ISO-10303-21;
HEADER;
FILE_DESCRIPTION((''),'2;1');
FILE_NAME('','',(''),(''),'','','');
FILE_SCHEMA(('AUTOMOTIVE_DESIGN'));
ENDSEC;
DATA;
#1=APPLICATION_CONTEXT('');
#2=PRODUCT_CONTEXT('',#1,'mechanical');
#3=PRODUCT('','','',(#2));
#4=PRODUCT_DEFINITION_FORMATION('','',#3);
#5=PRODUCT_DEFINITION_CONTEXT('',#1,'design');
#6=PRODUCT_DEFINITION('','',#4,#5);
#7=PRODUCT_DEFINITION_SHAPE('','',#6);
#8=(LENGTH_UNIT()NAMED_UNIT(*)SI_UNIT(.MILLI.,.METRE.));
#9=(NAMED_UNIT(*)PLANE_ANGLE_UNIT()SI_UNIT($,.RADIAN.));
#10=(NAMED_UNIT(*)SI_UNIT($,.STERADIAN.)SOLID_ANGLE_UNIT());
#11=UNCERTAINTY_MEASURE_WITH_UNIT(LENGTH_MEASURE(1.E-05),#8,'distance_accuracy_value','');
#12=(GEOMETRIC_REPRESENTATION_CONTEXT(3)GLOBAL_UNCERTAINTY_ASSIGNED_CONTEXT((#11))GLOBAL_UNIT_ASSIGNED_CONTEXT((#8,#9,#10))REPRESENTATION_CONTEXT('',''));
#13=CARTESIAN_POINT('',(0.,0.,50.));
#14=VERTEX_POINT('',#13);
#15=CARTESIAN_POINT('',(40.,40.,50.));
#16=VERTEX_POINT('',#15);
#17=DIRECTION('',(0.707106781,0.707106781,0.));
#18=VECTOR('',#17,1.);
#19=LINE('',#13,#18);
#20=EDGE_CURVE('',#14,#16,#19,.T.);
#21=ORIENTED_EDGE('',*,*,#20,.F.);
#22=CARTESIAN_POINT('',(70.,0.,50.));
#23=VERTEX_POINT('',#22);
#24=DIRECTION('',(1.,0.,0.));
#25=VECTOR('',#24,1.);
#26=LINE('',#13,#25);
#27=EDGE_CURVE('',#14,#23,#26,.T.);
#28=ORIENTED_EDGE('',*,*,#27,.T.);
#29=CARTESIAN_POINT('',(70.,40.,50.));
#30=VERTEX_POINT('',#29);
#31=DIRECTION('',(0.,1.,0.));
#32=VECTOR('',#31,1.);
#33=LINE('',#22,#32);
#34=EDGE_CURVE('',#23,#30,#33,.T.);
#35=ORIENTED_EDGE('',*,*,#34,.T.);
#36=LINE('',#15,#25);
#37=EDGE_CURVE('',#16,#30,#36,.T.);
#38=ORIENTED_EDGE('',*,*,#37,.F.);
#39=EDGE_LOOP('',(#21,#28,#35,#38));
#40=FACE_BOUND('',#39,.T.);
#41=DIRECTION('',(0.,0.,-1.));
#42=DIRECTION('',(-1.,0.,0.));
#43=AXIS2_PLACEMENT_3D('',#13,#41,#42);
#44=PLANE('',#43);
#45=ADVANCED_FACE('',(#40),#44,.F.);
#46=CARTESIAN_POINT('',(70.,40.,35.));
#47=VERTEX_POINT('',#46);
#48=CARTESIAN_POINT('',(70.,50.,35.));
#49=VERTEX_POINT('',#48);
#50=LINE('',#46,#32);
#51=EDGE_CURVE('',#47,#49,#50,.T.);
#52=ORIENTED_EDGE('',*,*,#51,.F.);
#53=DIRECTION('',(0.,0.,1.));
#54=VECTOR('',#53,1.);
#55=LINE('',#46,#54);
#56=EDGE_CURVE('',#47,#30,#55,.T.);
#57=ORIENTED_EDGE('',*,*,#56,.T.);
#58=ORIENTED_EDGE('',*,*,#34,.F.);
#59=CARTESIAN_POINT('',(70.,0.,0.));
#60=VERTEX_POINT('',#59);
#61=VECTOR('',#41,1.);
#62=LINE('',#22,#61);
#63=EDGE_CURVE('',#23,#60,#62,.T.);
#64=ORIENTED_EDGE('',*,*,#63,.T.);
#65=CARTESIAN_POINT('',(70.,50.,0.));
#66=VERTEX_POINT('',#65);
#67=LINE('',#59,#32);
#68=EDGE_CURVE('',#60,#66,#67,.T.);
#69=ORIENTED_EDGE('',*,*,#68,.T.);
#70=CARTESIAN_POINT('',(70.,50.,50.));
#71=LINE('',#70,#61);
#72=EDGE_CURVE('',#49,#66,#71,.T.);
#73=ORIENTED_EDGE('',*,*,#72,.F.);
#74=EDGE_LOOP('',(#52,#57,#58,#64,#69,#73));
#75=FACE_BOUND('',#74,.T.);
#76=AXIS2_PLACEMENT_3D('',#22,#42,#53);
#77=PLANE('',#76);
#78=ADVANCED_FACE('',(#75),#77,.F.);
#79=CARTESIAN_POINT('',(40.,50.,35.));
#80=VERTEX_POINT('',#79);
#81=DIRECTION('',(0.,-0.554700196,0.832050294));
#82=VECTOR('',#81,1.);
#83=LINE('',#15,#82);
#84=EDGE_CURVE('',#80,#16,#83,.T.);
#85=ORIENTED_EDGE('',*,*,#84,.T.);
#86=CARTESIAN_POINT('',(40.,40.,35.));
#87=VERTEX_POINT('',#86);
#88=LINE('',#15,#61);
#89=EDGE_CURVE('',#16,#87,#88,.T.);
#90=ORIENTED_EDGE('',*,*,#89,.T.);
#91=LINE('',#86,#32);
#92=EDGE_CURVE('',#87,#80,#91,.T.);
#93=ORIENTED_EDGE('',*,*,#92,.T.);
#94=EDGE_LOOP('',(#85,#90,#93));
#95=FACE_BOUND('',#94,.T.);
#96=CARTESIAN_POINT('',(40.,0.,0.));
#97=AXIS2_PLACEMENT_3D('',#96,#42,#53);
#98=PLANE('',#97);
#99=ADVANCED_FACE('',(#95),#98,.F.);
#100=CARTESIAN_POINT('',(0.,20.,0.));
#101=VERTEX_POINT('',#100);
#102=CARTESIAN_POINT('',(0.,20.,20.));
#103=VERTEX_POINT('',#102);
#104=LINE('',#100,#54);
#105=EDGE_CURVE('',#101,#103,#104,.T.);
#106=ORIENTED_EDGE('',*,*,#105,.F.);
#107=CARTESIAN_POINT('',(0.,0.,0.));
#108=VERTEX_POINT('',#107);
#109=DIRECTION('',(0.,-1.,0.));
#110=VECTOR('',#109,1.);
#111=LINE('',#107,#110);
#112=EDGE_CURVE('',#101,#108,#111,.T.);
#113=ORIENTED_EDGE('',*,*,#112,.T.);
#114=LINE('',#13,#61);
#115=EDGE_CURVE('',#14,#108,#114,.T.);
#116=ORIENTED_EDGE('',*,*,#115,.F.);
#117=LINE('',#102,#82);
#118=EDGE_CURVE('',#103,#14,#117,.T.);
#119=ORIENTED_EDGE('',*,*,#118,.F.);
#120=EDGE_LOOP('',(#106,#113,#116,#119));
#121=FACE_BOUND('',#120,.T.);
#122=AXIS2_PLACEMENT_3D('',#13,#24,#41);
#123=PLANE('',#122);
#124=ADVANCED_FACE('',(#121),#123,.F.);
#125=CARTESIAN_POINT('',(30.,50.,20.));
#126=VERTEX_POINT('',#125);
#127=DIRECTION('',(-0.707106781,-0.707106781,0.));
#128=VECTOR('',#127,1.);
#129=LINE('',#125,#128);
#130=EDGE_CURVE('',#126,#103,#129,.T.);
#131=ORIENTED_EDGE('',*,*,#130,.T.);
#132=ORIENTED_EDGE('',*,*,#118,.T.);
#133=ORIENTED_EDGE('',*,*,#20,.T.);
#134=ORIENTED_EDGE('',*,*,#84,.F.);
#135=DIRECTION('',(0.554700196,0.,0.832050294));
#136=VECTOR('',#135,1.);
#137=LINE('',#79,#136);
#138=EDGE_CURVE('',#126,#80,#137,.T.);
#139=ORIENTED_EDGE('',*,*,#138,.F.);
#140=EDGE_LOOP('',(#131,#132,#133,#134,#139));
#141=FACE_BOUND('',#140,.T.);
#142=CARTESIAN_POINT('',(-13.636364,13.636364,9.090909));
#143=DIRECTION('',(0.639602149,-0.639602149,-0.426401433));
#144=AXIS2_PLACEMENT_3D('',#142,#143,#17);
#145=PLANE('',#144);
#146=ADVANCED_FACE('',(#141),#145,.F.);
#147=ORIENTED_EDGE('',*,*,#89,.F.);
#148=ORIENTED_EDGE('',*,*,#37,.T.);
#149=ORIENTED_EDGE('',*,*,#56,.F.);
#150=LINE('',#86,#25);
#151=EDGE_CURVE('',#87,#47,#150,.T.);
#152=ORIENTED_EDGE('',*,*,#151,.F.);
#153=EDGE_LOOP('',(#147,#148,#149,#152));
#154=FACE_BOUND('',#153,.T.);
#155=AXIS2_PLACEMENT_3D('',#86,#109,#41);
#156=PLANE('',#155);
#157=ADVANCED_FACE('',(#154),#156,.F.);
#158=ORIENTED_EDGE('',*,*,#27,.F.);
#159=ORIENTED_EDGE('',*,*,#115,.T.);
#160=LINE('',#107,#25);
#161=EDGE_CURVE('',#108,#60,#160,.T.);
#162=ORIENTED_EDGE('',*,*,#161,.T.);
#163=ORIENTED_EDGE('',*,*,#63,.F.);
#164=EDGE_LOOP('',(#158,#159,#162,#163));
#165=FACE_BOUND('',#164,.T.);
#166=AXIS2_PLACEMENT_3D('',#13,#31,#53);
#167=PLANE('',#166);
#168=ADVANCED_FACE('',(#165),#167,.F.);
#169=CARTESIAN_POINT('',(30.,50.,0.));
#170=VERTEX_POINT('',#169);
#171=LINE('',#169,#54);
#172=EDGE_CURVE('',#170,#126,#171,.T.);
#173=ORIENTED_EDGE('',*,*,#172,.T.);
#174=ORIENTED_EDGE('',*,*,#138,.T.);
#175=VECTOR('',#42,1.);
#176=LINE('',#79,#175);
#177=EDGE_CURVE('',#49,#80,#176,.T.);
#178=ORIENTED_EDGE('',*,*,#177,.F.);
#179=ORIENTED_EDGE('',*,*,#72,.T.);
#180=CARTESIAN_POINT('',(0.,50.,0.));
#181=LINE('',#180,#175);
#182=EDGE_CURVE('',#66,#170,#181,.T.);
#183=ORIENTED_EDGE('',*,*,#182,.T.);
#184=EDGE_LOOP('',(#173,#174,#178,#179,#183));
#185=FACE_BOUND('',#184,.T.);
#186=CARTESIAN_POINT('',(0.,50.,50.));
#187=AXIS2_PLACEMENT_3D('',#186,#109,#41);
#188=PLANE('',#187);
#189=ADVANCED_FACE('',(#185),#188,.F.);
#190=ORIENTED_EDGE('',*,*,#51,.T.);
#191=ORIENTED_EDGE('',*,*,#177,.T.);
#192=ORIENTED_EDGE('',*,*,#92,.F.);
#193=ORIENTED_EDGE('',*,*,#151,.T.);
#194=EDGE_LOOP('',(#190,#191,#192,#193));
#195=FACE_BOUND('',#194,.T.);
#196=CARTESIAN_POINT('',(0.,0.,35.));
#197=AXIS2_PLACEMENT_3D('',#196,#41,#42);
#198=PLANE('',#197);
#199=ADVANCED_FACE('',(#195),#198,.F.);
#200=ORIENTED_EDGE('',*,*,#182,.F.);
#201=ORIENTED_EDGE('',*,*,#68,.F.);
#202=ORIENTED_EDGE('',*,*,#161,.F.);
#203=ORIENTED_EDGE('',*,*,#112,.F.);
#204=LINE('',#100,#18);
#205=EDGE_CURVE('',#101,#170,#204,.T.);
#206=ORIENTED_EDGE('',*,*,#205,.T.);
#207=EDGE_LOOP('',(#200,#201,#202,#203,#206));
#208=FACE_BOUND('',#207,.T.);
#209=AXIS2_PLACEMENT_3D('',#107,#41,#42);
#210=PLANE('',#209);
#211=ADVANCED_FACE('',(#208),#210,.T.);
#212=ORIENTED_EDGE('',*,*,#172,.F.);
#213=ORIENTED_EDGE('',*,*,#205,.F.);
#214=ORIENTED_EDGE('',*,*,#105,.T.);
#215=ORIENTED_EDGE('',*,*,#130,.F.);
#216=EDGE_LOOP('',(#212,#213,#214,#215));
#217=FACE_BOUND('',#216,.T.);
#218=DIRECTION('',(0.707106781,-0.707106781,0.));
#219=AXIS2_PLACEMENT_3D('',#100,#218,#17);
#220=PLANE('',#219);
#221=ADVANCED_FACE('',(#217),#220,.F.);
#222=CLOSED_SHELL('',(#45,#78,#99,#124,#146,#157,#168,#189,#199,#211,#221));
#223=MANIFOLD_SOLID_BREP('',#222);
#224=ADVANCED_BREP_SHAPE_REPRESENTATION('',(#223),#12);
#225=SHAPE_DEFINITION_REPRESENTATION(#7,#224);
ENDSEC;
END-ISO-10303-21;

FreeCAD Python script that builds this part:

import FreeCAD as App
import Part
import Sketcher

doc = App.newDocument("Part")
body = doc.addObject("PartDesign::Body", "Body")

sketch1 = body.newObject("Sketcher::SketchObject", "Sketch")
sketch1.AttachmentSupport = (doc.getObject("XY_Plane"), [""])
sketch1.MapMode = "FlatFace"
sketch1.addGeometry(Part.LineSegment(App.Vector(0, 50, 0), App.Vector(0, 0, 0)), False)
sketch1.addGeometry(Part.LineSegment(App.Vector(0, 0, 0), App.Vector(70, 0, 0)), False)
sketch1.addGeometry(Part.LineSegment(App.Vector(70, 0, 0), App.Vector(70, 50, 0)), False)
sketch1.addGeometry(Part.LineSegment(App.Vector(70, 50, 0), App.Vector(0, 50, 0)), False)
sketch1.addConstraint(Sketcher.Constraint("Coincident", 0, 2, 1, 1))
sketch1.addConstraint(Sketcher.Constraint("Coincident", 1, 2, 2, 1))
sketch1.addConstraint(Sketcher.Constraint("Coincident", 2, 2, 3, 1))
sketch1.addConstraint(Sketcher.Constraint("Coincident", 3, 2, 0, 1))
sketch1.addConstraint(Sketcher.Constraint("Vertical", 0))
sketch1.addConstraint(Sketcher.Constraint("Horizontal", 1))
sketch1.addConstraint(Sketcher.Constraint("Vertical", 2))
sketch1.addConstraint(Sketcher.Constraint("Horizontal", 3))
sketch1.addConstraint(Sketcher.Constraint("Coincident", 0, 2, -1, 1))
sketch1.addConstraint(Sketcher.Constraint("DistanceX", 1, 1, 1, 2, 70.0))
sketch1.addConstraint(Sketcher.Constraint("DistanceY", 0, 2, 0, 1, 50.0))
pad1 = body.newObject("PartDesign::Pad", "Pad")
pad1.Profile = sketch1
pad1.Length = 50

sketch2 = body.newObject("Sketcher::SketchObject", "Sketch001")
sketch2.AttachmentSupport = (doc.getObject("XY_Plane"), [""])
sketch2.MapMode = "FlatFace"
sketch2.AttachmentOffset = App.Placement(App.Vector(0, 0, 50), App.Rotation())
sketch2.addGeometry(Part.LineSegment(App.Vector(0, 20, 0), App.Vector(30, 50, 0)), False)
sketch2.addGeometry(Part.LineSegment(App.Vector(30, 50, 0), App.Vector(0, 50, 0)), False)
sketch2.addGeometry(Part.LineSegment(App.Vector(0, 50, 0), App.Vector(0, 20, 0)), False)
sketch2.addConstraint(Sketcher.Constraint("Coincident", 0, 2, 1, 1))
sketch2.addConstraint(Sketcher.Constraint("Coincident", 1, 2, 2, 1))
sketch2.addConstraint(Sketcher.Constraint("Coincident", 2, 2, 0, 1))
sketch2.addConstraint(Sketcher.Constraint("Horizontal", 1))
sketch2.addConstraint(Sketcher.Constraint("Vertical", 2))
sketch2.addConstraint(Sketcher.Constraint("PointOnObject", 1, 2, -2))
sketch2.addConstraint(Sketcher.Constraint("Equal", 1, 2))
sketch2.addConstraint(Sketcher.Constraint("DistanceX", 1, 2, 1, 1, 30.0))
sketch2.addConstraint(Sketcher.Constraint("DistanceY", -1, 1, 0, 2, 50.0))
pocket1 = body.newObject("PartDesign::Pocket", "Pocket")
pocket1.Profile = sketch2
pocket1.Length = 50

sketch3 = body.newObject("Sketcher::SketchObject", "Sketch002")
sketch3.AttachmentSupport = (doc.getObject("XY_Plane"), [""])
sketch3.MapMode = "FlatFace"
sketch3.AttachmentOffset = App.Placement(App.Vector(0, 0, 50), App.Rotation())
sketch3.addGeometry(Part.LineSegment(App.Vector(0, 0, 0), App.Vector(40, 40, 0)), False)
sketch3.addGeometry(Part.LineSegment(App.Vector(40, 40, 0), App.Vector(40, 50, 0)), False)
sketch3.addGeometry(Part.LineSegment(App.Vector(40, 50, 0), App.Vector(30, 50, 0)), False)
sketch3.addGeometry(Part.LineSegment(App.Vector(30, 50, 0), App.Vector(0, 20, 0)), False)
sketch3.addGeometry(Part.LineSegment(App.Vector(0, 20, 0), App.Vector(0, 0, 0)), False)
sketch3.addConstraint(Sketcher.Constraint("Coincident", 0, 2, 1, 1))
sketch3.addConstraint(Sketcher.Constraint("Coincident", 1, 2, 2, 1))
sketch3.addConstraint(Sketcher.Constraint("Coincident", 2, 2, 3, 1))
sketch3.addConstraint(Sketcher.Constraint("Coincident", 3, 2, 4, 1))
sketch3.addConstraint(Sketcher.Constraint("Coincident", 4, 2, 0, 1))
sketch3.addConstraint(Sketcher.Constraint("Vertical", 1))
sketch3.addConstraint(Sketcher.Constraint("Horizontal", 2))
sketch3.addConstraint(Sketcher.Constraint("Vertical", 4))
sketch3.addConstraint(Sketcher.Constraint("Coincident", 4, 2, -1, 1))
sketch3.addConstraint(Sketcher.Constraint("Parallel", 0, 3))
sketch3.addConstraint(Sketcher.Constraint("Equal", 2, 1))
sketch3.addConstraint(Sketcher.Constraint("DistanceX", 2, 2, 2, 1, 10.0))
sketch3.addConstraint(Sketcher.Constraint("DistanceY", 4, 2, 4, 1, 20.0))
sketch3.addConstraint(Sketcher.Constraint("DistanceX", -1, 1, 0, 2, 40.0))
pocket2 = body.newObject("PartDesign::Pocket", "Pocket001")
pocket2.Profile = sketch3
pocket2.Length = 30

sketch4 = body.newObject("Sketcher::SketchObject", "Sketch003")
sketch4.Placement = App.Placement(App.Vector(-13.636364, 13.636364, 9.090909), App.Rotation(App.Vector(0.768706115, 0.532181156, 0.354787438), App.Vector(0, 0.554700197, -0.832050294), App.Vector(-0.639602149, 0.639602149, 0.426401433), "ZXY"))
sketch4.addGeometry(Part.LineSegment(App.Vector(18, -6, 0), App.Vector(18, -42, 0)), False)
sketch4.addGeometry(Part.LineSegment(App.Vector(18, -42, 0), App.Vector(70, -19, 0)), False)
sketch4.addGeometry(Part.LineSegment(App.Vector(70, -19, 0), App.Vector(57, 11, 0)), False)
sketch4.addGeometry(Part.LineSegment(App.Vector(57, 11, 0), App.Vector(18, -6, 0)), False)
sketch4.addConstraint(Sketcher.Constraint("Coincident", 0, 2, 1, 1))
sketch4.addConstraint(Sketcher.Constraint("Coincident", 1, 2, 2, 1))
sketch4.addConstraint(Sketcher.Constraint("Coincident", 2, 2, 3, 1))
sketch4.addConstraint(Sketcher.Constraint("Coincident", 3, 2, 0, 1))
sketch4.addConstraint(Sketcher.Constraint("Vertical", 0))
sketch4.addConstraint(Sketcher.Constraint("Perpendicular", 1, 2))
sketch4.addConstraint(Sketcher.Constraint("Perpendicular", 2, 3))
sketch4.addConstraint(Sketcher.Constraint("DistanceY", 3, 2, -1, 1, 5.547002))
sketch4.addConstraint(Sketcher.Constraint("DistanceY", 0, 2, 0, 1, 36.055513))
sketch4.addConstraint(Sketcher.Constraint("DistanceX", -1, 1, 0, 2, 17.739372))
sketch4.addConstraint(Sketcher.Constraint("DistanceX", -1, 1, 2, 2, 56.76599))
sketch4.addConstraint(Sketcher.Constraint("DistanceX", 0, 2, 1, 2, 52.035491))
pad2 = body.newObject("PartDesign::Pad", "Pad001")
pad2.Profile = sketch4
pad2.Length = 30
pad2.Reversed = True

sketch5 = body.newObject("Sketcher::SketchObject", "Sketch004")
sketch5.AttachmentSupport = (doc.getObject("XZ_Plane"), [""])
sketch5.MapMode = "FlatFace"
sketch5.addGeometry(Part.LineSegment(App.Vector(0, 50, 0), App.Vector(0, 0, 0)), False)
sketch5.addGeometry(Part.LineSegment(App.Vector(0, 0, 0), App.Vector(70, 0, 0)), False)
sketch5.addGeometry(Part.LineSegment(App.Vector(70, 0, 0), App.Vector(70, 50, 0)), False)
sketch5.addGeometry(Part.LineSegment(App.Vector(70, 50, 0), App.Vector(0, 50, 0)), False)
sketch5.addConstraint(Sketcher.Constraint("Coincident", 0, 2, 1, 1))
sketch5.addConstraint(Sketcher.Constraint("Coincident", 1, 2, 2, 1))
sketch5.addConstraint(Sketcher.Constraint("Coincident", 2, 2, 3, 1))
sketch5.addConstraint(Sketcher.Constraint("Coincident", 3, 2, 0, 1))
sketch5.addConstraint(Sketcher.Constraint("Vertical", 0))
sketch5.addConstraint(Sketcher.Constraint("Horizontal", 1))
sketch5.addConstraint(Sketcher.Constraint("Vertical", 2))
sketch5.addConstraint(Sketcher.Constraint("Horizontal", 3))
sketch5.addConstraint(Sketcher.Constraint("Coincident", 0, 2, -1, 1))
sketch5.addConstraint(Sketcher.Constraint("DistanceX", 1, 1, 1, 2, 70.0))
sketch5.addConstraint(Sketcher.Constraint("DistanceY", 0, 2, 0, 1, 50.0))
pocket3 = body.newObject("PartDesign::Pocket", "Pocket002")
pocket3.Profile = sketch5
pocket3.Length = 30
pocket3.Reversed = True

sketch6 = body.newObject("Sketcher::SketchObject", "Sketch005")
sketch6.AttachmentSupport = (doc.getObject("YZ_Plane"), [""])
sketch6.MapMode = "FlatFace"
sketch6.addGeometry(Part.LineSegment(App.Vector(20, 20, 0), App.Vector(0, 20, 0)), False)
sketch6.addGeometry(Part.LineSegment(App.Vector(0, 20, 0), App.Vector(0, 50, 0)), False)
sketch6.addGeometry(Part.LineSegment(App.Vector(0, 50, 0), App.Vector(20, 20, 0)), False)
sketch6.addConstraint(Sketcher.Constraint("Coincident", 0, 2, 1, 1))
sketch6.addConstraint(Sketcher.Constraint("Coincident", 1, 2, 2, 1))
sketch6.addConstraint(Sketcher.Constraint("Coincident", 2, 2, 0, 1))
sketch6.addConstraint(Sketcher.Constraint("Horizontal", 0))
sketch6.addConstraint(Sketcher.Constraint("Vertical", 1))
sketch6.addConstraint(Sketcher.Constraint("PointOnObject", 0, 2, -2))
sketch6.addConstraint(Sketcher.Constraint("DistanceX", 0, 2, 0, 1, 20.0))
sketch6.addConstraint(Sketcher.Constraint("DistanceY", 1, 1, 1, 2, 30.0))
sketch6.addConstraint(Sketcher.Constraint("DistanceY", -1, 1, 0, 2, 20.0))
pad3 = body.newObject("PartDesign::Pad", "Pad002")
pad3.Profile = sketch6
pad3.Length = 30

sketch7 = body.newObject("Sketcher::SketchObject", "Sketch006")
sketch7.AttachmentSupport = (doc.getObject("XY_Plane"), [""])
sketch7.MapMode = "FlatFace"
sketch7.AttachmentOffset = App.Placement(App.Vector(0, 0, 50), App.Rotation())
sketch7.addGeometry(Part.LineSegment(App.Vector(40, 50, 0), App.Vector(40, 40, 0)), False)
sketch7.addGeometry(Part.LineSegment(App.Vector(40, 40, 0), App.Vector(70, 40, 0)), False)
sketch7.addGeometry(Part.LineSegment(App.Vector(70, 40, 0), App.Vector(70, 50, 0)), False)
sketch7.addGeometry(Part.LineSegment(App.Vector(70, 50, 0), App.Vector(40, 50, 0)), False)
sketch7.addConstraint(Sketcher.Constraint("Coincident", 0, 2, 1, 1))
sketch7.addConstraint(Sketcher.Constraint("Coincident", 1, 2, 2, 1))
sketch7.addConstraint(Sketcher.Constraint("Coincident", 2, 2, 3, 1))
sketch7.addConstraint(Sketcher.Constraint("Coincident", 3, 2, 0, 1))
sketch7.addConstraint(Sketcher.Constraint("Vertical", 0))
sketch7.addConstraint(Sketcher.Constraint("Horizontal", 1))
sketch7.addConstraint(Sketcher.Constraint("Vertical", 2))
sketch7.addConstraint(Sketcher.Constraint("Horizontal", 3))
sketch7.addConstraint(Sketcher.Constraint("DistanceX", 1, 1, 1, 2, 30.0))
sketch7.addConstraint(Sketcher.Constraint("DistanceY", 0, 2, 0, 1, 10.0))
sketch7.addConstraint(Sketcher.Constraint("DistanceX", -1, 1, 0, 2, 40.0))
sketch7.addConstraint(Sketcher.Constraint("DistanceY", -1, 1, 0, 2, 40.0))
pocket4 = body.newObject("PartDesign::Pocket", "Pocket003")
pocket4.Profile = sketch7
pocket4.Length = 15

sketch8 = body.newObject("Sketcher::SketchObject", "Sketch007")
sketch8.Placement = App.Placement(App.Vector(-13.636364, 13.636364, 9.090909), App.Rotation(App.Vector(-0.768706115, -0.532181156, -0.354787438), App.Vector(0, 0.554700197, -0.832050294), App.Vector(0.639602149, -0.639602149, -0.426401433), "ZXY"))
sketch8.addGeometry(Part.LineSegment(App.Vector(-70, -19, 0), App.Vector(-57, 11, 0)), False)
sketch8.addGeometry(Part.LineSegment(App.Vector(-57, 11, 0), App.Vector(-70, -1, 0)), False)
sketch8.addGeometry(Part.LineSegment(App.Vector(-70, -1, 0), App.Vector(-70, -19, 0)), False)
sketch8.addConstraint(Sketcher.Constraint("Coincident", 0, 2, 1, 1))
sketch8.addConstraint(Sketcher.Constraint("Coincident", 1, 2, 2, 1))
sketch8.addConstraint(Sketcher.Constraint("Coincident", 2, 2, 0, 1))
sketch8.addConstraint(Sketcher.Constraint("Vertical", 2))
sketch8.addConstraint(Sketcher.Constraint("DistanceY", 2, 2, 2, 1, 18.027756))
sketch8.addConstraint(Sketcher.Constraint("DistanceX", 0, 2, -1, 1, 56.76599))
sketch8.addConstraint(Sketcher.Constraint("DistanceY", 1, 2, -1, 1, 1.38675))
sketch8.addConstraint(Sketcher.Constraint("DistanceY", 2, 2, 0, 2, 30.508511))
sketch8.addConstraint(Sketcher.Constraint("Distance", 0, 33.166248))
pad4 = body.newObject("PartDesign::Pad", "Pad003")
pad4.Profile = sketch8
pad4.Length = 15

sketch9 = body.newObject("Sketcher::SketchObject", "Sketch008")
sketch9.AttachmentSupport = (doc.getObject("XZ_Plane"), [""])
sketch9.MapMode = "FlatFace"
sketch9.AttachmentOffset = App.Placement(App.Vector(0, 0, -50), App.Rotation())
sketch9.addGeometry(Part.LineSegment(App.Vector(40, 20, 0), App.Vector(30, 20, 0)), False)
sketch9.addGeometry(Part.LineSegment(App.Vector(30, 20, 0), App.Vector(40, 35, 0)), False)
sketch9.addGeometry(Part.LineSegment(App.Vector(40, 35, 0), App.Vector(40, 20, 0)), False)
sketch9.addConstraint(Sketcher.Constraint("Coincident", 0, 2, 1, 1))
sketch9.addConstraint(Sketcher.Constraint("Coincident", 1, 2, 2, 1))
sketch9.addConstraint(Sketcher.Constraint("Coincident", 2, 2, 0, 1))
sketch9.addConstraint(Sketcher.Constraint("Horizontal", 0))
sketch9.addConstraint(Sketcher.Constraint("Vertical", 2))
sketch9.addConstraint(Sketcher.Constraint("DistanceX", 0, 2, 0, 1, 10.0))
sketch9.addConstraint(Sketcher.Constraint("DistanceY", 2, 2, 2, 1, 15.0))
sketch9.addConstraint(Sketcher.Constraint("DistanceX", -1, 1, 0, 2, 30.0))
sketch9.addConstraint(Sketcher.Constraint("DistanceY", -1, 1, 0, 2, 20.0))
pad5 = body.newObject("PartDesign::Pad", "Pad004")
pad5.Profile = sketch9
pad5.Length = 15

sketch10 = body.newObject("Sketcher::SketchObject", "Sketch009")
sketch10.AttachmentSupport = (doc.getObject("YZ_Plane"), [""])
sketch10.MapMode = "FlatFace"
sketch10.AttachmentOffset = App.Placement(App.Vector(0, 0, 70), App.Rotation())
sketch10.addGeometry(Part.LineSegment(App.Vector(50, 50, 0), App.Vector(40, 50, 0)), False)
sketch10.addGeometry(Part.LineSegment(App.Vector(40, 50, 0), App.Vector(40, 35, 0)), False)
sketch10.addGeometry(Part.LineSegment(App.Vector(40, 35, 0), App.Vector(50, 35, 0)), False)
sketch10.addGeometry(Part.LineSegment(App.Vector(50, 35, 0), App.Vector(50, 50, 0)), False)
sketch10.addConstraint(Sketcher.Constraint("Coincident", 0, 2, 1, 1))
sketch10.addConstraint(Sketcher.Constraint("Coincident", 1, 2, 2, 1))
sketch10.addConstraint(Sketcher.Constraint("Coincident", 2, 2, 3, 1))
sketch10.addConstraint(Sketcher.Constraint("Coincident", 3, 2, 0, 1))
sketch10.addConstraint(Sketcher.Constraint("Horizontal", 0))
sketch10.addConstraint(Sketcher.Constraint("Vertical", 1))
sketch10.addConstraint(Sketcher.Constraint("Horizontal", 2))
sketch10.addConstraint(Sketcher.Constraint("Vertical", 3))
sketch10.addConstraint(Sketcher.Constraint("DistanceX", 0, 2, 0, 1, 10.0))
sketch10.addConstraint(Sketcher.Constraint("DistanceY", 1, 2, 1, 1, 15.0))
sketch10.addConstraint(Sketcher.Constraint("DistanceX", -1, 1, 0, 2, 40.0))
sketch10.addConstraint(Sketcher.Constraint("DistanceY", -1, 1, 0, 2, 50.0))
pocket5 = body.newObject("PartDesign::Pocket", "Pocket004")
pocket5.Profile = sketch10
pocket5.Length = 30

doc.recompute()
